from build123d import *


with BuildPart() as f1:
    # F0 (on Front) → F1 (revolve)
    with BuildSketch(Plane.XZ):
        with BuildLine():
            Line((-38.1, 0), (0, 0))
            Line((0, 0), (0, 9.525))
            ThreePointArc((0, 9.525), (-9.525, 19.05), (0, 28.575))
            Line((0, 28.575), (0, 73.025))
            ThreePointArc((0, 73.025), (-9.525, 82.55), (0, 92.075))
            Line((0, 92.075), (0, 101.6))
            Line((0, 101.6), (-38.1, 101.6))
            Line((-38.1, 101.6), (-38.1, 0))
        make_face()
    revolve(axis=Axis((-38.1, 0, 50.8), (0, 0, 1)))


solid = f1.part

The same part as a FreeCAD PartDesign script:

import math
import FreeCAD as App
import Part
import Sketcher
from FreeCAD import Vector
Q = App.Units.Quantity

doc = App.newDocument("Part")
body = doc.addObject("PartDesign::Body", "Body")

# Sketch on XZ plane
sketch1 = doc.addObject("Sketcher::SketchObject", "Sketch")
body.addObject(sketch1)
sketch1.AttachmentSupport = (doc.XZ_Plane, [""])
sketch1.MapMode = "FlatFace"
sketch1.addGeometry([
    Part.LineSegment(Vector(-38, 0, 0), Vector(0, 0, 0)),  # 0
    Part.LineSegment(Vector(0, 0, 0), Vector(0, 10, 0)),  # 1
    Part.ArcOfCircle(Part.Circle(Vector(0, 19, 0), Vector(0, 0, 1), 10), math.radians(90), math.radians(270)),  # 2
    Part.LineSegment(Vector(0, 29, 0), Vector(0, 73, 0)),  # 3
    Part.ArcOfCircle(Part.Circle(Vector(0, 83, 0), Vector(0, 0, 1), 10), math.radians(90), math.radians(270)),  # 4
    Part.LineSegment(Vector(0, 92, 0), Vector(0, 102, 0)),  # 5
    Part.LineSegment(Vector(0, 102, 0), Vector(-38, 102, 0)),  # 6
    Part.LineSegment(Vector(-38, 102, 0), Vector(-38, 0, 0)),  # 7
], False)
sketch1.addGeometry(Part.LineSegment(Vector(-38, 0, 0), Vector(-38, 102, 0)), True)  # axis
sketch1.addConstraint([
    Sketcher.Constraint("Coincident", 0, 2, 1, 1),
    Sketcher.Constraint("Coincident", 1, 2, 2, 2),
    Sketcher.Constraint("Coincident", 2, 1, 3, 1),
    Sketcher.Constraint("Coincident", 3, 2, 4, 2),
    Sketcher.Constraint("Coincident", 4, 1, 5, 1),
    Sketcher.Constraint("Coincident", 5, 2, 6, 1),
    Sketcher.Constraint("Coincident", 6, 2, 7, 1),
    Sketcher.Constraint("Coincident", 7, 2, 0, 1),
    Sketcher.Constraint("Horizontal", 0),
    Sketcher.Constraint("Vertical", 1),
    Sketcher.Constraint("Vertical", 3),
    Sketcher.Constraint("Vertical", 5),
    Sketcher.Constraint("Horizontal", 6),
    Sketcher.Constraint("Vertical", 7),
    Sketcher.Constraint("Vertical", 8),
    Sketcher.Constraint("Coincident", 0, 2, -1, 1),
    Sketcher.Constraint("Coincident", 8, 1, 7, 2),
    Sketcher.Constraint("Equal", 2, 4),
    Sketcher.Constraint("PointOnObject", 2, 3, -2),
    Sketcher.Constraint("PointOnObject", 4, 3, -2),
    Sketcher.Constraint("PointOnObject", 2, 1, -2),
    Sketcher.Constraint("PointOnObject", 4, 1, -2),
    Sketcher.Constraint("Horizontal", 5, 2, 8, 2),
    Sketcher.Constraint("Equal", 1, 5),
    Sketcher.Constraint("DistanceY", 7, 2, 7, 1, Q("4 in")),
    Sketcher.Constraint("DistanceX", 0, 1, 0, 2, Q("1.5 in")),
    Sketcher.Constraint("Radius", 2, Q("0.375 in")),
    Sketcher.Constraint("DistanceY", 3, 1, 3, 2, Q("1.75 in")),
])
revolution = doc.addObject("PartDesign::Revolution", "Revolution")
body.addObject(revolution)
revolution.Profile = sketch1
revolution.ReferenceAxis = (sketch1, ["Axis0"])
revolution.Angle = 360

doc.recompute()
